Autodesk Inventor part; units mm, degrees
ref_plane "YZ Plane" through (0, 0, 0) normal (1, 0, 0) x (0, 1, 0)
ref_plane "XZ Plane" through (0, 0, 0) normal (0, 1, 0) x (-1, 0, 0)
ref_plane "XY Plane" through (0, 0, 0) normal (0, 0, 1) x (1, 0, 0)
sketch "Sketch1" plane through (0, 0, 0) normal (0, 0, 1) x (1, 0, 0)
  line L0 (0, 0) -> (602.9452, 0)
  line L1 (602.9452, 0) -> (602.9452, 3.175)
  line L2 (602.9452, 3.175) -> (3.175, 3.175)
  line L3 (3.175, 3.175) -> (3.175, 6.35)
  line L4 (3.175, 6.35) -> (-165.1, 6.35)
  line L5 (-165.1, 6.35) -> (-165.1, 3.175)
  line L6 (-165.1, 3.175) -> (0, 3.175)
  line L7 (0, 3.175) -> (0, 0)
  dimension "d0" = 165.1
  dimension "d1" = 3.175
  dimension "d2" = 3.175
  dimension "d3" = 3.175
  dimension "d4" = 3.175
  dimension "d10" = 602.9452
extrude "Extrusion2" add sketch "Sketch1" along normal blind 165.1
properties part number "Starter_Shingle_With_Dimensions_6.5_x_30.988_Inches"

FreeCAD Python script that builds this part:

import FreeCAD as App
import Part
import Sketcher
Q = App.Units.Quantity


def add_polygon(sketch, points):
    """Adds a closed chain of lines whose ends are joined by coincident constraints."""
    first, n = sketch.GeometryCount, len(points)
    for a, b in zip(points, points[1:] + points[:1]):
        sketch.addGeometry(Part.LineSegment(App.Vector(*a, 0), App.Vector(*b, 0)), False)
    for i in range(n):
        sketch.addConstraint(Sketcher.Constraint("Coincident", first + i, 2, first + (i + 1) % n, 1))

doc = App.newDocument("Part")
body = doc.addObject("PartDesign::Body", "Body")

# Sketch on XY plane
sketch1 = doc.addObject("Sketcher::SketchObject", "Sketch")
body.addObject(sketch1)
sketch1.AttachmentSupport = (doc.XY_Plane, [""])
sketch1.MapMode = "FlatFace"
add_polygon(sketch1, [(0, 3.2), (0, 0), (602.9, 0), (602.9, 3.2), (3.2, 3.2), (3.2, 6.3), (-165.1, 6.3), (-165.1, 3.2)])  # lines 0-7
sketch1.addConstraint(Sketcher.Constraint("Vertical", 0))
sketch1.addConstraint(Sketcher.Constraint("Horizontal", 1))
sketch1.addConstraint(Sketcher.Constraint("Vertical", 2))
sketch1.addConstraint(Sketcher.Constraint("Horizontal", 3))
sketch1.addConstraint(Sketcher.Constraint("Vertical", 4))
sketch1.addConstraint(Sketcher.Constraint("Horizontal", 5))
sketch1.addConstraint(Sketcher.Constraint("Vertical", 6))
sketch1.addConstraint(Sketcher.Constraint("Horizontal", 7))
sketch1.addConstraint(Sketcher.Constraint("Coincident", 0, 2, -1, 1))
sketch1.addConstraint(Sketcher.Constraint("Horizontal", 3, 2, 6, 2))
sketch1.addConstraint(Sketcher.Constraint("Equal", 2, 4))
sketch1.addConstraint(Sketcher.Constraint("DistanceX", 7, 1, 7, 2, Q("6.5 in")))
sketch1.addConstraint(Sketcher.Constraint("DistanceX", 1, 1, 1, 2, Q("23.738 in")))
sketch1.addConstraint(Sketcher.Constraint("DistanceY", 0, 2, 0, 1, Q("0.125 in")))
sketch1.addConstraint(Sketcher.Constraint("DistanceX", -1, 1, 3, 2, Q("0.125 in")))
pad1 = doc.addObject("PartDesign::Pad", "Pad")
body.addObject(pad1)
pad1.Profile = sketch1
pad1.Length = Q("6.5 in")

doc.recompute()
